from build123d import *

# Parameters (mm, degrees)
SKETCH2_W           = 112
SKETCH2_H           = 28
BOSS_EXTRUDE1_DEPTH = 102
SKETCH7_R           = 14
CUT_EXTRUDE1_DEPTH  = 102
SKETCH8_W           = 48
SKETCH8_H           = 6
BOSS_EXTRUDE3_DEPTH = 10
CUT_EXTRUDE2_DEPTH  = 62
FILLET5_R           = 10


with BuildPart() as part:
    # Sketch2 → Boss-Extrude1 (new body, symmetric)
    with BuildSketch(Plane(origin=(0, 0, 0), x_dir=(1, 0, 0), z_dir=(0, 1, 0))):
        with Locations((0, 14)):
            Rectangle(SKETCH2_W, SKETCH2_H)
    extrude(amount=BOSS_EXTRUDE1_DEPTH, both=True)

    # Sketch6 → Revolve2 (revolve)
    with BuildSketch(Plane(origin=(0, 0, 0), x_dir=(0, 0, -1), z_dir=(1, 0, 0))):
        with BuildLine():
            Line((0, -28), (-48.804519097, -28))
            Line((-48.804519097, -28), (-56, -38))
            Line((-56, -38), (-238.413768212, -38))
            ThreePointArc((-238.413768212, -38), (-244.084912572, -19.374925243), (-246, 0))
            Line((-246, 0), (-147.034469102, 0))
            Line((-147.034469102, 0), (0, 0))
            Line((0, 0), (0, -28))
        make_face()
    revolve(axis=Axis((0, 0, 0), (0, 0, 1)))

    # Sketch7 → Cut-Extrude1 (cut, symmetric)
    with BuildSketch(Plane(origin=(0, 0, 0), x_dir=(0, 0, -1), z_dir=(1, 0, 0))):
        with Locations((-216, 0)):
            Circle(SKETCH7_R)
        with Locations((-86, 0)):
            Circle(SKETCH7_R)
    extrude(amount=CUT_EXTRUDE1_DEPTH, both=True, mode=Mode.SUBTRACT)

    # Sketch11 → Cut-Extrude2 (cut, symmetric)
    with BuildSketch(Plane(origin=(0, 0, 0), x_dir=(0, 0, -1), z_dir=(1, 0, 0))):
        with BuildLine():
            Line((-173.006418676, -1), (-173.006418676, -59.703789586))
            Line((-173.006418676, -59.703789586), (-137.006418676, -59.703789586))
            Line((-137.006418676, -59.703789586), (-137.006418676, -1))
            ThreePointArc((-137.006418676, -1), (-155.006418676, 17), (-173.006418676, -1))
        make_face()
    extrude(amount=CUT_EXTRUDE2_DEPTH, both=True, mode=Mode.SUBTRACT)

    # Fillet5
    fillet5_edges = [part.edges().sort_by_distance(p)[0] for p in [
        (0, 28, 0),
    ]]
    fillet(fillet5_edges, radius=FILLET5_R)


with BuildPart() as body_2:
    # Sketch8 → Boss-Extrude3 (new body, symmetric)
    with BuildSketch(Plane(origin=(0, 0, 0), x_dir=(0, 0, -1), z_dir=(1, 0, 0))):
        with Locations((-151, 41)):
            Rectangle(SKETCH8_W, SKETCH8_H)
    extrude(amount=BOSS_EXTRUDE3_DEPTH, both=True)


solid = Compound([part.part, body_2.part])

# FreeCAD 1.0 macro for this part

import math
import FreeCAD as App
import Part
import Sketcher
from FreeCAD import Vector
Q = App.Units.Quantity


def edges_at(feature, points):
    """Names of the edges that pass closest to the given points."""
    edges = feature.Shape.Edges
    near = lambda p: min(range(len(edges)), key=lambda i: edges[i].distToShape(Part.Vertex(*p))[0])
    return sorted({f"Edge{near(p) + 1}" for p in points})


def add_polygon(sketch, points):
    """Adds a closed chain of lines whose ends are joined by coincident constraints."""
    first, n = sketch.GeometryCount, len(points)
    for a, b in zip(points, points[1:] + points[:1]):
        sketch.addGeometry(Part.LineSegment(App.Vector(*a, 0), App.Vector(*b, 0)), False)
    for i in range(n):
        sketch.addConstraint(Sketcher.Constraint("Coincident", first + i, 2, first + (i + 1) % n, 1))

doc = App.newDocument("Part")
body = doc.addObject("PartDesign::Body", "Body")

sketch1 = body.newObject("Sketcher::SketchObject", "Sketch")
sketch1.AttachmentSupport = (doc.getObject("XZ_Plane"), [""])
sketch1.MapMode = "FlatFace"
add_polygon(sketch1, [(-56, -28), (-56, 0), (56, 0), (56, -28)])
sketch1.addConstraint(Sketcher.Constraint("Vertical", 0))
sketch1.addConstraint(Sketcher.Constraint("Horizontal", 1))
sketch1.addConstraint(Sketcher.Constraint("Vertical", 2))
sketch1.addConstraint(Sketcher.Constraint("Horizontal", 3))
sketch1.addConstraint(Sketcher.Constraint("Symmetric", 0, 2, 1, 2, -1, 1))
sketch1.addConstraint(Sketcher.Constraint("DistanceX", 1, 1, 1, 2, Q("112 mm")))
sketch1.addConstraint(Sketcher.Constraint("DistanceY", 0, 1, 0, 2, Q("28 mm")))
pad1 = body.newObject("PartDesign::Pad", "Pad")
pad1.Profile = sketch1
pad1.Length = 204
pad1.Midplane = True

sketch2 = body.newObject("Sketcher::SketchObject", "Sketch001")
sketch2.AttachmentSupport = (doc.getObject("YZ_Plane"), [""])
sketch2.MapMode = "FlatFace"
sketch2.addGeometry(Part.LineSegment(Vector(-28, 49, 0), Vector(-28, 0, 0)), False)
sketch2.addGeometry(Part.LineSegment(Vector(-28, 0, 0), Vector(0, 0, 0)), False)
sketch2.addGeometry(Part.LineSegment(Vector(0, 0, 0), Vector(0, 246, 0)), False)
sketch2.addGeometry(Part.ArcOfCircle(Part.Circle(Vector(0, 147, 0), Vector(0, 0, 1), 99), math.radians(90), math.radians(113)), False)
sketch2.addGeometry(Part.LineSegment(Vector(-38, 238, 0), Vector(-38, 56, 0)), False)
sketch2.addGeometry(Part.LineSegment(Vector(-38, 56, 0), Vector(-28, 49, 0)), False)
sketch2.addConstraint(Sketcher.Constraint("Coincident", 0, 2, 1, 1))
sketch2.addConstraint(Sketcher.Constraint("Coincident", 1, 2, 2, 1))
sketch2.addConstraint(Sketcher.Constraint("Coincident", 2, 2, 3, 1))
sketch2.addConstraint(Sketcher.Constraint("Coincident", 3, 2, 4, 1))
sketch2.addConstraint(Sketcher.Constraint("Coincident", 4, 2, 5, 1))
sketch2.addConstraint(Sketcher.Constraint("Coincident", 5, 2, 0, 1))
sketch2.addConstraint(Sketcher.Constraint("Vertical", 0))
sketch2.addConstraint(Sketcher.Constraint("Horizontal", 1))
sketch2.addConstraint(Sketcher.Constraint("Vertical", 2))
sketch2.addConstraint(Sketcher.Constraint("Vertical", 4))
sketch2.addConstraint(Sketcher.Constraint("Coincident", 1, 2, -1, 1))
sketch2.addConstraint(Sketcher.Constraint("PointOnObject", 3, 3, -2))
sketch2.addConstraint(Sketcher.Constraint("DistanceX", 1, 1, 1, 2, Q("28 mm")))
sketch2.addConstraint(Sketcher.Constraint("DistanceY", 2, 1, 2, 2, Q("246 mm")))
sketch2.addConstraint(Sketcher.Constraint("DistanceX", 3, 2, -1, 1, Q("38 mm")))
sketch2.addConstraint(Sketcher.Constraint("DistanceY", -1, 1, 4, 2, Q("56 mm")))
sketch2.addConstraint(Sketcher.Constraint("Radius", 3, Q("98.965531 mm")))
sketch2.addConstraint(Sketcher.Constraint("DistanceY", 0, 2, 0, 1, Q("48.804519 mm")))
revolution = body.newObject("PartDesign::Revolution", "Revolution")
revolution.Profile = sketch2
revolution.ReferenceAxis = (sketch2, ["V_Axis"])
revolution.Angle = 360

sketch3 = body.newObject("Sketcher::SketchObject", "Sketch002")
sketch3.AttachmentSupport = (doc.getObject("YZ_Plane"), [""])
sketch3.MapMode = "FlatFace"
sketch3.addGeometry(Part.Circle(Vector(0, 216, 0), Vector(0, 0, 1), 14), False)
sketch3.addGeometry(Part.Circle(Vector(0, 86, 0), Vector(0, 0, 1), 14), False)
sketch3.addConstraint(Sketcher.Constraint("Equal", 0, 1))
sketch3.addConstraint(Sketcher.Constraint("PointOnObject", 0, 3, -2))
sketch3.addConstraint(Sketcher.Constraint("PointOnObject", 1, 3, -2))
sketch3.addConstraint(Sketcher.Constraint("Diameter", 0, Q("28 mm")))
sketch3.addConstraint(Sketcher.Constraint("DistanceY", -1, 1, 0, 3, Q("216 mm")))
sketch3.addConstraint(Sketcher.Constraint("DistanceY", -1, 1, 1, 3, Q("86 mm")))
pocket1 = body.newObject("PartDesign::Pocket", "Pocket")
pocket1.Profile = sketch3
pocket1.Length = 204
pocket1.Midplane = True

sketch4 = body.newObject("Sketcher::SketchObject", "Sketch003")
sketch4.AttachmentSupport = (doc.getObject("YZ_Plane"), [""])
sketch4.MapMode = "FlatFace"
sketch4.addGeometry(Part.LineSegment(Vector(-1, 173, 0), Vector(-60, 173, 0)), False)
sketch4.addGeometry(Part.LineSegment(Vector(-60, 173, 0), Vector(-60, 137, 0)), False)
sketch4.addGeometry(Part.LineSegment(Vector(-60, 137, 0), Vector(-1, 137, 0)), False)
sketch4.addGeometry(Part.ArcOfCircle(Part.Circle(Vector(-1, 155, 0), Vector(0, 0, 1), 18), math.radians(-90), math.radians(90)), False)
sketch4.addConstraint(Sketcher.Constraint("Coincident", 0, 2, 1, 1))
sketch4.addConstraint(Sketcher.Constraint("Coincident", 1, 2, 2, 1))
sketch4.addConstraint(Sketcher.Constraint("Tangent", 2, 2, 3, 1))
sketch4.addConstraint(Sketcher.Constraint("Tangent", 3, 2, 0, 1))
sketch4.addConstraint(Sketcher.Constraint("Horizontal", 0))
sketch4.addConstraint(Sketcher.Constraint("Vertical", 1))
sketch4.addConstraint(Sketcher.Constraint("Horizontal", 2))
sketch4.addConstraint(Sketcher.Constraint("Radius", 3, Q("18 mm")))
sketch4.addConstraint(Sketcher.Constraint("DistanceX", 3, 3, -1, 1, Q("1 mm")))
sketch4.addConstraint(Sketcher.Constraint("DistanceX", 0, 2, 0, 1, Q("58.70379 mm")))
sketch4.addConstraint(Sketcher.Constraint("DistanceY", -1, 1, 3, 3, Q("155.006419 mm")))
pocket2 = body.newObject("PartDesign::Pocket", "Pocket001")
pocket2.Profile = sketch4
pocket2.Length = 124
pocket2.Midplane = True
doc.recompute()

fillet = body.newObject("PartDesign::Fillet", "Fillet")
fillet.Base = (pocket2, edges_at(pocket2, [(0, 28, 0)]))
fillet.Radius = 10
body2 = doc.addObject("PartDesign::Body", "Body001")

sketch5 = body2.newObject("Sketcher::SketchObject", "Sketch004")
sketch5.AttachmentSupport = (doc.getObject("YZ_Plane001"), [""])
sketch5.MapMode = "FlatFace"
add_polygon(sketch5, [(44, 175), (38, 175), (38, 127), (44, 127)])
sketch5.addConstraint(Sketcher.Constraint("Horizontal", 0))
sketch5.addConstraint(Sketcher.Constraint("Vertical", 1))
sketch5.addConstraint(Sketcher.Constraint("Horizontal", 2))
sketch5.addConstraint(Sketcher.Constraint("Vertical", 3))
sketch5.addConstraint(Sketcher.Constraint("DistanceX", 0, 2, 0, 1, Q("6 mm")))
sketch5.addConstraint(Sketcher.Constraint("DistanceY", 1, 2, 1, 1, Q("48 mm")))
sketch5.addConstraint(Sketcher.Constraint("DistanceX", -1, 1, 0, 2, Q("38 mm")))
sketch5.addConstraint(Sketcher.Constraint("DistanceY", -1, 1, 0, 2, Q("175 mm")))
pad2 = body2.newObject("PartDesign::Pad", "Pad001")
pad2.Profile = sketch5
pad2.Length = 20
pad2.Midplane = True

doc.recompute()
